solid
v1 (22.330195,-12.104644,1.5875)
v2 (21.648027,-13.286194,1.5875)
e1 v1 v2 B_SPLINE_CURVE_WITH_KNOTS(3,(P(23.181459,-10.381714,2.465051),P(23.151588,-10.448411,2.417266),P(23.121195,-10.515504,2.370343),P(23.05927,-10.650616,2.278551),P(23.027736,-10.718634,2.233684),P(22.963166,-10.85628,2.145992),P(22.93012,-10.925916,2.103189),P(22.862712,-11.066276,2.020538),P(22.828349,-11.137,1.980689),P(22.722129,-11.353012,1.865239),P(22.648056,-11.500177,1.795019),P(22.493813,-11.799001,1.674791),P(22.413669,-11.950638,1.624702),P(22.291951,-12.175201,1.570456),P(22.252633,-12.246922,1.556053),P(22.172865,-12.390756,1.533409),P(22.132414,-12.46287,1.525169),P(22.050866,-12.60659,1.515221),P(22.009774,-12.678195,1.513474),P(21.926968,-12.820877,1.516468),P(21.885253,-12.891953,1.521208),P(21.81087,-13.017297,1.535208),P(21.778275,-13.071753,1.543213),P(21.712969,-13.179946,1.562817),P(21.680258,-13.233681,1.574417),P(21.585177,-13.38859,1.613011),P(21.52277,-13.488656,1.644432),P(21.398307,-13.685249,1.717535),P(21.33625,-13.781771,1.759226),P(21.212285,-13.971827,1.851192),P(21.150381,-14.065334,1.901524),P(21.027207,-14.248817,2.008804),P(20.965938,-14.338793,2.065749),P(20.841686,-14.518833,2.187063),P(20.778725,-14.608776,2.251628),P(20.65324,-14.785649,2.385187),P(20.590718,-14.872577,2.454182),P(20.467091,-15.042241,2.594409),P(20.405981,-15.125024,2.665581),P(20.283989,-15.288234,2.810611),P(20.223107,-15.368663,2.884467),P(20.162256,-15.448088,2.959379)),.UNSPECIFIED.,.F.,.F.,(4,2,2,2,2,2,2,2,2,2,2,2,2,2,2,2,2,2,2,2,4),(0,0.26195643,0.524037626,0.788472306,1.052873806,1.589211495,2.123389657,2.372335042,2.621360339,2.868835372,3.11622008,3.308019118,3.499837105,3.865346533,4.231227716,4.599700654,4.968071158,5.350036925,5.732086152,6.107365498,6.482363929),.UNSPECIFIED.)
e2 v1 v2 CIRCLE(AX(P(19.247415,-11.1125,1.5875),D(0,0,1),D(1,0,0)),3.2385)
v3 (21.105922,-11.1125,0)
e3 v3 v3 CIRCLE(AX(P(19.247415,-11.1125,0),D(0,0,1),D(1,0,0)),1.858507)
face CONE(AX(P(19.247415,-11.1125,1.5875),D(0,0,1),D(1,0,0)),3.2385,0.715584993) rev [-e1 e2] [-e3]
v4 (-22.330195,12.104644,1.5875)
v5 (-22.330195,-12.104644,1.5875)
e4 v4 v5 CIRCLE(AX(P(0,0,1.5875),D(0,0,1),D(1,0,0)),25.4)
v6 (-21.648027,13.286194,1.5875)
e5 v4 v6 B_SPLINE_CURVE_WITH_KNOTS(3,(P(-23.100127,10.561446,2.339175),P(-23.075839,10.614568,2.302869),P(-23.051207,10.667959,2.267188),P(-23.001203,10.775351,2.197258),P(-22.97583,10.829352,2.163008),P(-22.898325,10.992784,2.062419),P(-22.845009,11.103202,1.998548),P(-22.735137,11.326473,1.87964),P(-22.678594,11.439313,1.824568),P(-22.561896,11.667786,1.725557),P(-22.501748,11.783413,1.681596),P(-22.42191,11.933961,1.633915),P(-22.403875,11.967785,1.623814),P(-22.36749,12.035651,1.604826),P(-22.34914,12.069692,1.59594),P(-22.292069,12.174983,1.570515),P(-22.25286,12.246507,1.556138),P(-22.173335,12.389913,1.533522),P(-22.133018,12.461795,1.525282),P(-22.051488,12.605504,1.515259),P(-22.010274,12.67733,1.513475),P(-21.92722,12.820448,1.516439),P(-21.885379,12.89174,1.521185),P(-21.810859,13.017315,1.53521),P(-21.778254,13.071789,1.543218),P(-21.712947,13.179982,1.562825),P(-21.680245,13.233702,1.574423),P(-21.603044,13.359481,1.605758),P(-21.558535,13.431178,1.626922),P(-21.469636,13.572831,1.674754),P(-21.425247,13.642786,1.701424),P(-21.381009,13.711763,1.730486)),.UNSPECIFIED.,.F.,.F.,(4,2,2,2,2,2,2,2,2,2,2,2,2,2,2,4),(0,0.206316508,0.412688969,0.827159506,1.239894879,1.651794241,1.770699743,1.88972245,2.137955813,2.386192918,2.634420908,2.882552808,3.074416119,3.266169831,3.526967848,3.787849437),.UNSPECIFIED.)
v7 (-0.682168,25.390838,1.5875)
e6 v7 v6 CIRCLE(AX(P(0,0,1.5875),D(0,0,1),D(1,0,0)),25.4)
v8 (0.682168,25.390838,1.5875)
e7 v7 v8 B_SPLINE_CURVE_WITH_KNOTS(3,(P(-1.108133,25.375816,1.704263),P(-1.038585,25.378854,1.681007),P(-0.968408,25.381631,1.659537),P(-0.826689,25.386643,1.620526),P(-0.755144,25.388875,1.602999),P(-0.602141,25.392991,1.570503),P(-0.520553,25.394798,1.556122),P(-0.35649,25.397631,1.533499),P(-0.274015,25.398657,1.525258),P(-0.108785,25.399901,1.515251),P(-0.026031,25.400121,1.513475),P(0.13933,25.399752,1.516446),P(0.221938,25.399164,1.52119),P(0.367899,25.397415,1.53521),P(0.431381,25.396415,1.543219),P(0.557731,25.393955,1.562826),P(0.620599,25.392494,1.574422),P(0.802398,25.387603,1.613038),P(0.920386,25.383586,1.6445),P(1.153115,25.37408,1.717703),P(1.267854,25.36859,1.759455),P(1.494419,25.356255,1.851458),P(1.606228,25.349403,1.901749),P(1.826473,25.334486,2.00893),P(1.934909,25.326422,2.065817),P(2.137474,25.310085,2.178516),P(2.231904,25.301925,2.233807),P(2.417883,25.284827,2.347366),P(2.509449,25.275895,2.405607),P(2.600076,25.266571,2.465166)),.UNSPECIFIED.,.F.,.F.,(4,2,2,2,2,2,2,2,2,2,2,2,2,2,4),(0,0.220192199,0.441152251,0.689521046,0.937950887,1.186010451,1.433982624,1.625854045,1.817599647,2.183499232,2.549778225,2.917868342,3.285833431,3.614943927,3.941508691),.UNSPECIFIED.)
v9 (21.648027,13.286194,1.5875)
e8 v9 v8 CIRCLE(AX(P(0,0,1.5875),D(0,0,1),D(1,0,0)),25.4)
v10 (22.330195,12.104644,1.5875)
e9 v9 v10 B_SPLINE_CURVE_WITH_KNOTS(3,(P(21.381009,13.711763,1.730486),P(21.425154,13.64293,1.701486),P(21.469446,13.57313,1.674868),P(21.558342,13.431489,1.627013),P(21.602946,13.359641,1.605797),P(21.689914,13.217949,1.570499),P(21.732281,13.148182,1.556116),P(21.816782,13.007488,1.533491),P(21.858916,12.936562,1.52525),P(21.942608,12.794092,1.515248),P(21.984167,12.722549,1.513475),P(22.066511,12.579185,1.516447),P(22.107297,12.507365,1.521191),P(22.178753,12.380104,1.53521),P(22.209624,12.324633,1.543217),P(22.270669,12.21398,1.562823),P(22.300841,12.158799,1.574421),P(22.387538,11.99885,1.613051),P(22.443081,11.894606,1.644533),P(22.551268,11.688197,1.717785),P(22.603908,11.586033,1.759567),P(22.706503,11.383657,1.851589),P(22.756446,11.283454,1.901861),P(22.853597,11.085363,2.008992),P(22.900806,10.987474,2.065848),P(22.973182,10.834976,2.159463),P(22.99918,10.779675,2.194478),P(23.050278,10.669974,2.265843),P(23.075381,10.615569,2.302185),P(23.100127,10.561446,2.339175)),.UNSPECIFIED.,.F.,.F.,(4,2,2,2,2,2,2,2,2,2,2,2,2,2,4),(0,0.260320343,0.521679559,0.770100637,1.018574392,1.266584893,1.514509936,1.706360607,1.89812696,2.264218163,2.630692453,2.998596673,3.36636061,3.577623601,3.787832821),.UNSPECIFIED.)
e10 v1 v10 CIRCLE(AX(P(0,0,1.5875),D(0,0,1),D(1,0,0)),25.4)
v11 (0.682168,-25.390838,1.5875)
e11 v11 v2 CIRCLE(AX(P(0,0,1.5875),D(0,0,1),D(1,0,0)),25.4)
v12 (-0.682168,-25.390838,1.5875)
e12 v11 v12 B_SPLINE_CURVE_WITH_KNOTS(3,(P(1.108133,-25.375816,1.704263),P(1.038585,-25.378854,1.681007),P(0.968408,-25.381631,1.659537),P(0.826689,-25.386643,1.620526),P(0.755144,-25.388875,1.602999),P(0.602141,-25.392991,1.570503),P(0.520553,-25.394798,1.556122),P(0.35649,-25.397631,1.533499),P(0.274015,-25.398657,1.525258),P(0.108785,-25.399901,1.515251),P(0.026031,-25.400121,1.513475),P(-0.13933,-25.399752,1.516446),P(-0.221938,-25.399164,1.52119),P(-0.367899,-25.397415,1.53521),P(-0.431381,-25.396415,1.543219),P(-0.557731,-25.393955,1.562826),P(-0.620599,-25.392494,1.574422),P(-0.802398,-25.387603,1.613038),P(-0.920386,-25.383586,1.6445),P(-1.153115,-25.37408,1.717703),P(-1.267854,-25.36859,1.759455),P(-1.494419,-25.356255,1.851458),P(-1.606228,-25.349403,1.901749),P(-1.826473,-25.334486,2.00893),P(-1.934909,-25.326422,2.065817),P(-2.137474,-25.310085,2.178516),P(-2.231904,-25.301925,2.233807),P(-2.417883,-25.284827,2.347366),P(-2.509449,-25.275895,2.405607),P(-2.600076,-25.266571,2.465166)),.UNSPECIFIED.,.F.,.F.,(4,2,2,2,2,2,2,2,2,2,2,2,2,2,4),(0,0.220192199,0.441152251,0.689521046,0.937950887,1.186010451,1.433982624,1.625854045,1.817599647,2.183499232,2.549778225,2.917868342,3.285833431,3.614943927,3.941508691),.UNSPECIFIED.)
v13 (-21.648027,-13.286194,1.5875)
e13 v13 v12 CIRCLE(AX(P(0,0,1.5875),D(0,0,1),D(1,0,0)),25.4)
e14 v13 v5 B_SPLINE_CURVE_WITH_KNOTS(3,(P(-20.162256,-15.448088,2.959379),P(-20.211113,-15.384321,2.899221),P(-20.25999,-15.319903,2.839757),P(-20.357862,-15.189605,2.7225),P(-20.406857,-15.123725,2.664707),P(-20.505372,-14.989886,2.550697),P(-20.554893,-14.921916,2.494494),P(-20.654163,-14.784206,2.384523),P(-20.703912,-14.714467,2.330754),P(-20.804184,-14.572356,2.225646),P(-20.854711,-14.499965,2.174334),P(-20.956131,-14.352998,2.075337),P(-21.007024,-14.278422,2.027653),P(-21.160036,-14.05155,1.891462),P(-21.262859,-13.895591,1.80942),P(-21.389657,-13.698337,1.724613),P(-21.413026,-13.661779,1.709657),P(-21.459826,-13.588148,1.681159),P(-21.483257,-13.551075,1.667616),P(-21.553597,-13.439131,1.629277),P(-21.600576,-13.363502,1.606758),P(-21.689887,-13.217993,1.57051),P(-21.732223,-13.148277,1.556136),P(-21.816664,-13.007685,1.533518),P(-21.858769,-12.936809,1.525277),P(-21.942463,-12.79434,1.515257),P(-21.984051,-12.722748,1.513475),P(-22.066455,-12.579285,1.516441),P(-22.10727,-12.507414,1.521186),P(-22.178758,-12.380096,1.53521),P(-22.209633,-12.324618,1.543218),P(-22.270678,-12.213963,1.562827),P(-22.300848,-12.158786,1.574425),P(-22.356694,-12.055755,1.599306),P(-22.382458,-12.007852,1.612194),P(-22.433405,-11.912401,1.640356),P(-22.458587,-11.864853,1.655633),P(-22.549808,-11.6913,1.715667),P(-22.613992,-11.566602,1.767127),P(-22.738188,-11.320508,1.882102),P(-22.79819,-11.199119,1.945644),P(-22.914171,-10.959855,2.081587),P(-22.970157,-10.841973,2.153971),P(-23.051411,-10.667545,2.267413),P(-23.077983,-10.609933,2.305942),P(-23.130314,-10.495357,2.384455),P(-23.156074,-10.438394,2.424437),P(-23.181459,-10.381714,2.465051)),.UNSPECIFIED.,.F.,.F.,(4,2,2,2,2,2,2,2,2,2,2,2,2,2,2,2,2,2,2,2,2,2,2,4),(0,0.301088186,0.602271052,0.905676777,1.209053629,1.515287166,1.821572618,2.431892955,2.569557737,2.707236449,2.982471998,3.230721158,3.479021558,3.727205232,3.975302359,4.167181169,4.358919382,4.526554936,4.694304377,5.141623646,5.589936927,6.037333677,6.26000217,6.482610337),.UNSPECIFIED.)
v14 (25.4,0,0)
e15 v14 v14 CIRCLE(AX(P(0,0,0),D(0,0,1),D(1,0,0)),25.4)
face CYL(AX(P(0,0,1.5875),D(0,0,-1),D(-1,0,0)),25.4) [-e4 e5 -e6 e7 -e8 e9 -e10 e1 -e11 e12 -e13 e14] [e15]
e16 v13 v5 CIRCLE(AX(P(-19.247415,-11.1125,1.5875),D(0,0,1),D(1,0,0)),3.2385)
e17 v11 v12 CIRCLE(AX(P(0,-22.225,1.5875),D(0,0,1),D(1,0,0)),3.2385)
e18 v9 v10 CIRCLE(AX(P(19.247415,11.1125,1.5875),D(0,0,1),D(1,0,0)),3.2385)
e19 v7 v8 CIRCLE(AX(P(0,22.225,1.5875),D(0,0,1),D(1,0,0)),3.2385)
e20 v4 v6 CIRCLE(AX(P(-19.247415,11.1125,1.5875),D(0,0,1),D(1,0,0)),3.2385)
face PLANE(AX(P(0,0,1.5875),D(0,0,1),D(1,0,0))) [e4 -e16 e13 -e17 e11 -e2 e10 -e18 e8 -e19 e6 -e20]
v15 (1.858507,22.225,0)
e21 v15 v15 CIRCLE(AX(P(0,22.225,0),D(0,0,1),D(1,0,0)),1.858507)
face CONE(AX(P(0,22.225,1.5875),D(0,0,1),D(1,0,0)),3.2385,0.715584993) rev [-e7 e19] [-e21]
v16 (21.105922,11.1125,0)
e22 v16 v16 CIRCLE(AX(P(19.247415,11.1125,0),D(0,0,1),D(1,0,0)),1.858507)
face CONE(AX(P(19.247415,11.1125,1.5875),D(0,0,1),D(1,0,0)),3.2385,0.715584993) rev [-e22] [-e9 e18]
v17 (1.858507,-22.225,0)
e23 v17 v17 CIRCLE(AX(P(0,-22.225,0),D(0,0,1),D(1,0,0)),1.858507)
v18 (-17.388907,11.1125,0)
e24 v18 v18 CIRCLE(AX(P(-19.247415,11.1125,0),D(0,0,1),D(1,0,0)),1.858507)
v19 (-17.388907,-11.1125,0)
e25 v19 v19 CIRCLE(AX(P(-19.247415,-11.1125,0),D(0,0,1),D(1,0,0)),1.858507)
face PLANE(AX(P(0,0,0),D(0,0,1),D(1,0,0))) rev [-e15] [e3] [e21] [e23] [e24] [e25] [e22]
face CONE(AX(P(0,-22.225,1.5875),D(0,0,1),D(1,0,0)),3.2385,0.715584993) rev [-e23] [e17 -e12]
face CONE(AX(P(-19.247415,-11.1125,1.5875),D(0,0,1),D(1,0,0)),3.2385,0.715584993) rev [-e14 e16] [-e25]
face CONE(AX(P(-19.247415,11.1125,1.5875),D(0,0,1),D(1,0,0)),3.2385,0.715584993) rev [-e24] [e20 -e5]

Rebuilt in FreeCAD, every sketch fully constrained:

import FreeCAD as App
import Part
import Sketcher
from FreeCAD import Vector
Q = App.Units.Quantity

doc = App.newDocument("Part")
body = doc.addObject("PartDesign::Body", "Body")

# Sketch on XY plane
sketch1 = body.newObject("Sketcher::SketchObject", "Sketch")
sketch1.AttachmentSupport = (doc.getObject("XY_Plane"), [""])
sketch1.MapMode = "FlatFace"
sketch1.addGeometry(Part.Circle(Vector(0, 0, 0), Vector(0, 0, 1), 25.4), False)
sketch1.addConstraint([
    Sketcher.Constraint("Coincident", 0, 3, -1, 1),
    Sketcher.Constraint("Diameter", 0, Q("2 in")),
])
pad1 = body.newObject("PartDesign::Pad", "Pad")
pad1.Profile = sketch1
pad1.Length = Q("0.0625 in")

# Sketch on YZ plane
sketch2 = body.newObject("Sketcher::SketchObject", "Sketch001")
sketch2.AttachmentSupport = (doc.getObject("YZ_Plane"), [""])
sketch2.MapMode = "FlatFace"
sketch2.addGeometry([
    Part.LineSegment(Vector(22.225, 0, 0), Vector(22.225, 1.5875, 0)),  # 0
    Part.LineSegment(Vector(22.225, 1.5875, 0), Vector(18.9865, 1.5875, 0)),  # 1
    Part.LineSegment(Vector(18.9865, 1.5875, 0), Vector(20.59305, -0.260624, 0)),  # 2
    Part.LineSegment(Vector(20.59305, -0.260624, 0), Vector(20.59305, 0, 0)),  # 3
    Part.LineSegment(Vector(20.59305, 0, 0), Vector(22.225, 0, 0)),  # 4
], False)
sketch2.addGeometry(Part.LineSegment(Vector(22.225, 1.5875, 0), Vector(22.225, -0.260624, 0)), True)  # axis
sketch2.addConstraint([
    Sketcher.Constraint("Coincident", 0, 2, 1, 1),
    Sketcher.Constraint("Coincident", 1, 2, 2, 1),
    Sketcher.Constraint("Coincident", 2, 2, 3, 1),
    Sketcher.Constraint("Coincident", 3, 2, 4, 1),
    Sketcher.Constraint("Coincident", 4, 2, 0, 1),
    Sketcher.Constraint("Vertical", 0),
    Sketcher.Constraint("Horizontal", 1),
    Sketcher.Constraint("Vertical", 3),
    Sketcher.Constraint("Horizontal", 4),
    Sketcher.Constraint("Vertical", 5),
    Sketcher.Constraint("Coincident", 5, 1, 0, 2),
    Sketcher.Constraint("PointOnObject", 3, 2, -1),
    Sketcher.Constraint("Horizontal", 2, 2, 5, 2),
    Sketcher.Constraint("Angle", 2, Q("-49 deg")),
    Sketcher.Constraint("DistanceY", 0, 1, 0, 2, Q("0.0625 in")),
    Sketcher.Constraint("DistanceX", 1, 2, 1, 1, Q("0.1275 in")),
    Sketcher.Constraint("DistanceX", -1, 1, 0, 2, Q("0.875 in")),
    Sketcher.Constraint("DistanceX", 4, 1, 4, 2, 1.63195),
])
groove = body.newObject("PartDesign::Groove", "Groove")
groove.Profile = sketch2
groove.ReferenceAxis = (sketch2, ["Axis0"])
groove.Angle = 360
doc.recompute()

datumline = body.newObject("PartDesign::Line", "DatumLine")
datumline.Placement = App.Placement(Vector(0, 0, 0), App.Rotation(Vector(0, 0, 1), Vector(0.866025404, -0.5, 0)))
linearpattern = body.newObject("PartDesign::LinearPattern", "LinearPattern")
linearpattern.Originals = [groove]
linearpattern.Direction = (datumline, [""])
linearpattern.Mode = "offset"
linearpattern.Offset = Q("0.875 in")
linearpattern.Occurrences = 2
body.Tip = linearpattern
doc.recompute()

datumline2 = body.newObject("PartDesign::Line", "DatumLine001")
datumline2.Placement = App.Placement(Vector(0, 0, 0), App.Rotation(Vector(0, 0, 1), Vector(0.5, -0.866025404, 0)))
linearpattern2 = body.newObject("PartDesign::LinearPattern", "LinearPattern001")
linearpattern2.Originals = [groove]
linearpattern2.Direction = (datumline2, [""])
linearpattern2.Mode = "offset"
linearpattern2.Offset = 38.494829
linearpattern2.Occurrences = 2
body.Tip = linearpattern2
doc.recompute()

linearpattern3 = body.newObject("PartDesign::LinearPattern", "LinearPattern002")
linearpattern3.Originals = [groove]
linearpattern3.Direction = (doc.getObject("Y_Axis"), [""])
linearpattern3.Mode = "offset"
linearpattern3.Offset = Q("1.75 in")
linearpattern3.Occurrences = 2
linearpattern3.Reversed = True
body.Tip = linearpattern3
doc.recompute()

datumline3 = body.newObject("PartDesign::Line", "DatumLine002")
datumline3.Placement = App.Placement(Vector(0, 0, 0), App.Rotation(Vector(0, 0, 1), Vector(-0.5, -0.866025404, 0)))
linearpattern4 = body.newObject("PartDesign::LinearPattern", "LinearPattern003")
linearpattern4.Originals = [groove]
linearpattern4.Direction = (datumline3, [""])
linearpattern4.Mode = "offset"
linearpattern4.Offset = 38.494829
linearpattern4.Occurrences = 2
body.Tip = linearpattern4
doc.recompute()

datumline4 = body.newObject("PartDesign::Line", "DatumLine003")
datumline4.Placement = App.Placement(Vector(0, 0, 0), App.Rotation(Vector(0, 0, 1), Vector(-0.866025404, -0.5, 0)))
linearpattern5 = body.newObject("PartDesign::LinearPattern", "LinearPattern004")
linearpattern5.Originals = [groove]
linearpattern5.Direction = (datumline4, [""])
linearpattern5.Mode = "offset"
linearpattern5.Offset = Q("0.875 in")
linearpattern5.Occurrences = 2
body.Tip = linearpattern5

doc.recompute()
